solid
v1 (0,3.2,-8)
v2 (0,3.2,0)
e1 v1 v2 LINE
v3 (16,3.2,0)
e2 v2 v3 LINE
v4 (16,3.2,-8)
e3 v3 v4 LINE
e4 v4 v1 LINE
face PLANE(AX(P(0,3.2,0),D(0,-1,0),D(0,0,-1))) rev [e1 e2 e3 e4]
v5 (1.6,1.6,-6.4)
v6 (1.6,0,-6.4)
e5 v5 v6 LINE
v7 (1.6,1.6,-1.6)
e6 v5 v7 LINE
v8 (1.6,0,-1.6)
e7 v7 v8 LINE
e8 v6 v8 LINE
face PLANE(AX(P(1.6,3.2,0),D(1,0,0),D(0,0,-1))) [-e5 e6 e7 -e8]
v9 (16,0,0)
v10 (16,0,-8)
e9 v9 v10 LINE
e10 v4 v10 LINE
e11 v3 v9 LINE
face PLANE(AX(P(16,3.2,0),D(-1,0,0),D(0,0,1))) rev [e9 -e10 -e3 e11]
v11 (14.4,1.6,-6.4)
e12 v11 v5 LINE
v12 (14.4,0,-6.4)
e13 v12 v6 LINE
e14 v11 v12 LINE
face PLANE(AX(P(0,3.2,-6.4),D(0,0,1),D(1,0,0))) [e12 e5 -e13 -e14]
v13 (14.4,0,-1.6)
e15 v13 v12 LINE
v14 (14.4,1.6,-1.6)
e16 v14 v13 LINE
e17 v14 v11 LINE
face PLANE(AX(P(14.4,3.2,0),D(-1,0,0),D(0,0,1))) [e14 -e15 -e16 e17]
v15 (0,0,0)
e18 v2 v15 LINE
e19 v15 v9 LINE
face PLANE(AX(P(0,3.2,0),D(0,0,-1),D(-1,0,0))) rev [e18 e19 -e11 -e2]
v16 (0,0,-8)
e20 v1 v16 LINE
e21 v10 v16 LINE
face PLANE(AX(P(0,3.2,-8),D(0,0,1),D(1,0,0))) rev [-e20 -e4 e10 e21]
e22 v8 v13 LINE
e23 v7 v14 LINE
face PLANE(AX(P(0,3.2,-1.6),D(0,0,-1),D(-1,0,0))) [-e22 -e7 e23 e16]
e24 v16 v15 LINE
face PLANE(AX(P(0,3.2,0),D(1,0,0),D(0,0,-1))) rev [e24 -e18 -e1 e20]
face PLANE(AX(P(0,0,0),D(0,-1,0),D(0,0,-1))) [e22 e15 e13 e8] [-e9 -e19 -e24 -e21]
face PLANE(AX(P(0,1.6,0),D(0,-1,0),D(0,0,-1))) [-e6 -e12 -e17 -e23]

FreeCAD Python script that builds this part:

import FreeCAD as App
import Part
import Sketcher

V = App.Vector
Q = App.Units.Quantity


def faces_at(feature, points):
    """Names of the faces that lie closest to the given points."""
    faces = feature.Shape.Faces
    near = lambda p: min(range(len(faces)), key=lambda i: faces[i].distToShape(Part.Vertex(*p))[0])
    return sorted({f"Face{near(p) + 1}" for p in points})

doc = App.newDocument("Part")
body = doc.addObject("PartDesign::Body", "Body")

# Sketch on XZ plane
sketch1 = body.newObject("Sketcher::SketchObject", "Sketch")
sketch1.AttachmentSupport = (doc.getObject("XZ_Plane"), [""])
sketch1.MapMode = "FlatFace"
sketch1.addGeometry(Part.LineSegment(V(0, -8, 0), V(0, 0, 0)), False)
sketch1.addGeometry(Part.LineSegment(V(0, 0, 0), V(16, 0, 0)), False)
sketch1.addGeometry(Part.LineSegment(V(16, 0, 0), V(16, -8, 0)), False)
sketch1.addGeometry(Part.LineSegment(V(16, -8, 0), V(0, -8, 0)), False)
sketch1.addConstraint(Sketcher.Constraint("Coincident", 0, 2, 1, 1))
sketch1.addConstraint(Sketcher.Constraint("Coincident", 1, 2, 2, 1))
sketch1.addConstraint(Sketcher.Constraint("Coincident", 2, 2, 3, 1))
sketch1.addConstraint(Sketcher.Constraint("Coincident", 3, 2, 0, 1))
sketch1.addConstraint(Sketcher.Constraint("Vertical", 0))
sketch1.addConstraint(Sketcher.Constraint("Horizontal", 1))
sketch1.addConstraint(Sketcher.Constraint("Vertical", 2))
sketch1.addConstraint(Sketcher.Constraint("Horizontal", 3))
sketch1.addConstraint(Sketcher.Constraint("Coincident", 0, 2, -1, 1))
sketch1.addConstraint(Sketcher.Constraint("DistanceX", 1, 1, 1, 2, Q("16 mm")))
sketch1.addConstraint(Sketcher.Constraint("DistanceY", 0, 1, 0, 2, Q("8 mm")))
pad1 = body.newObject("PartDesign::Pad", "Pad")
pad1.Profile = sketch1
pad1.Length = 3.2
pad1.Reversed = True
doc.recompute()

thickness = body.newObject("PartDesign::Thickness", "Thickness")
thickness.Base = (pad1, faces_at(pad1, [(8, 0, -4)]))
thickness.Value = 1.6
thickness.Reversed = True
thickness.Join = "Intersection"

doc.recompute()
